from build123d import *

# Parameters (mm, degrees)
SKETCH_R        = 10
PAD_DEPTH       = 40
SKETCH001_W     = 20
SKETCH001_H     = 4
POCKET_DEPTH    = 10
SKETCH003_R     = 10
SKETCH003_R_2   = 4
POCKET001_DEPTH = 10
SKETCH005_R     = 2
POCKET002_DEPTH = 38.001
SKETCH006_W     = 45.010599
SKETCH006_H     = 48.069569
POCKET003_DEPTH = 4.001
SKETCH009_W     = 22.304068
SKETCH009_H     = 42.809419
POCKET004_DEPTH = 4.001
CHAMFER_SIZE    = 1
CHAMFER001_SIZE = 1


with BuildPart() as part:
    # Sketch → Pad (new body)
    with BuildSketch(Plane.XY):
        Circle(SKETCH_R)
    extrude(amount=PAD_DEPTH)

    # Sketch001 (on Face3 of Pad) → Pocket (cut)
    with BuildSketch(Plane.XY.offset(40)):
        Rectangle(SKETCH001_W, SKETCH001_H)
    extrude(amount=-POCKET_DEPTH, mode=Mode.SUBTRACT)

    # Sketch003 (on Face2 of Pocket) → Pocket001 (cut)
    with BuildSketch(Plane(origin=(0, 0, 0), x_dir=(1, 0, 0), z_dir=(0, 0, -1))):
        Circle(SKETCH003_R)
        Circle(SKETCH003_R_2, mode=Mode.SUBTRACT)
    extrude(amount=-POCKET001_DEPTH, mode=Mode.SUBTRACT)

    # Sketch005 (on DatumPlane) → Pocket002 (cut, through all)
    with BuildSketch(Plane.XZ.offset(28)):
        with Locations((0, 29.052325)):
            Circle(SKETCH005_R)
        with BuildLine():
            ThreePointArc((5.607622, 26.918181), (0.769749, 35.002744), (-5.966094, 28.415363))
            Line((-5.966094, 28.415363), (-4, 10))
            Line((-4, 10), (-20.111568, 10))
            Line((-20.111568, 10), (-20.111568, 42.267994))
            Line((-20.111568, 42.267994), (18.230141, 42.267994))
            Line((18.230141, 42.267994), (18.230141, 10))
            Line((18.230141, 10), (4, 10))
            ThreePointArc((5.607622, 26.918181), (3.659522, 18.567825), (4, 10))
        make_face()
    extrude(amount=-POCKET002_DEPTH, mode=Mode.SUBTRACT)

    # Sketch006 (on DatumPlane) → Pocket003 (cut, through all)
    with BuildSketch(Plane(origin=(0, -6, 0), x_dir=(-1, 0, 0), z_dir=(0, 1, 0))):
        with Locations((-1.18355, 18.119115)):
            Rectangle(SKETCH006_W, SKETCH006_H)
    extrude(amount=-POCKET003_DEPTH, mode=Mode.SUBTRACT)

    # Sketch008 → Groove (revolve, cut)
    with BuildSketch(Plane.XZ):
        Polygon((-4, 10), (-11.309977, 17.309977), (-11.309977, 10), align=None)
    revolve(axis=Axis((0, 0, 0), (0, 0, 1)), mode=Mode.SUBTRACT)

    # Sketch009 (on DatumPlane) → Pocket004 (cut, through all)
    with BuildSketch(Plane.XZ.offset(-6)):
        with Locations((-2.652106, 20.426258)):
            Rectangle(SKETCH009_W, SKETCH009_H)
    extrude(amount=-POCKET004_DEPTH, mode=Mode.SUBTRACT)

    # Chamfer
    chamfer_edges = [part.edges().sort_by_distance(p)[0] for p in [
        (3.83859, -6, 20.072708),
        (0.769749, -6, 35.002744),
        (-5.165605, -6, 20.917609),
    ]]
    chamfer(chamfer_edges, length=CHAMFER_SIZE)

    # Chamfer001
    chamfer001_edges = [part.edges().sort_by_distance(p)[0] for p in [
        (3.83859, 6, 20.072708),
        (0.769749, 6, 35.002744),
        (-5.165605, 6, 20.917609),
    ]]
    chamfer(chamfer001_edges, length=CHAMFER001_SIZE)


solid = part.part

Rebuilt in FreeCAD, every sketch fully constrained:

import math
import FreeCAD as App
import Part
import Sketcher
from FreeCAD import Vector


def edges_at(feature, points):
    """Names of the edges that pass closest to the given points."""
    edges = feature.Shape.Edges
    near = lambda p: min(range(len(edges)), key=lambda i: edges[i].distToShape(Part.Vertex(*p))[0])
    return sorted({f"Edge{near(p) + 1}" for p in points})

doc = App.newDocument("Part")
params = doc.addObject("Spreadsheet::Sheet", "Params")
for row, (alias, value) in enumerate([
    ("sketch1_diameter", "20 mm"),
    ("pad1_length", "40 mm"),
    ("sketch2_width", "20 mm"),
    ("sketch2_height", "4 mm"),
    ("pocket1_length", "10 mm"),
    ("sketch3_diameter", "20 mm"),
    ("sketch3_diameter2", "8 mm"),
    ("pocket2_length", "10 mm"),
    ("sketch4_diameter", "4 mm"),
    ("sketch4_radius", "6 mm"),
    ("groove_angle", "360 deg"),
    ("chamfer_size", "1 mm"),
    ("chamfer2_size", "1 mm"),
], start=1):
    params.set(f"A{row}", alias)
    params.set(f"B{row}", "=" + value)
    params.setAlias(f"B{row}", alias)

body = doc.addObject("PartDesign::Body", "Body")

sketch1 = body.newObject("Sketcher::SketchObject", "Sketch")
sketch1.AttachmentSupport = (doc.getObject("XY_Plane"), [""])
sketch1.MapMode = "FlatFace"
sketch1.addGeometry(Part.Circle(Vector(0, 0, 0), Vector(0, 0, 1), 10), False)
sketch1.addConstraint(Sketcher.Constraint("Coincident", 0, 3, -1, 1))
sketch1.addConstraint(Sketcher.Constraint("Diameter", 0, 20.0))
sketch1.setExpression("Constraints[1]", "Params.sketch1_diameter")
pad1 = body.newObject("PartDesign::Pad", "Pad")
pad1.Profile = sketch1
pad1.setExpression("Length", "Params.pad1_length")

sketch2 = body.newObject("Sketcher::SketchObject", "Sketch001")
sketch2.AttachmentSupport = (doc.getObject("XY_Plane"), [""])
sketch2.MapMode = "FlatFace"
sketch2.AttachmentOffset = App.Placement(Vector(0, 0, 40), App.Rotation())
sketch2.addGeometry(Part.LineSegment(Vector(-10, 2, 0), Vector(-10, -2, 0)), False)
sketch2.addGeometry(Part.LineSegment(Vector(-10, -2, 0), Vector(10, -2, 0)), False)
sketch2.addGeometry(Part.LineSegment(Vector(10, -2, 0), Vector(10, 2, 0)), False)
sketch2.addGeometry(Part.LineSegment(Vector(10, 2, 0), Vector(-10, 2, 0)), False)
sketch2.addConstraint(Sketcher.Constraint("Coincident", 0, 2, 1, 1))
sketch2.addConstraint(Sketcher.Constraint("Coincident", 1, 2, 2, 1))
sketch2.addConstraint(Sketcher.Constraint("Coincident", 2, 2, 3, 1))
sketch2.addConstraint(Sketcher.Constraint("Coincident", 3, 2, 0, 1))
sketch2.addConstraint(Sketcher.Constraint("Vertical", 0))
sketch2.addConstraint(Sketcher.Constraint("Horizontal", 1))
sketch2.addConstraint(Sketcher.Constraint("Vertical", 2))
sketch2.addConstraint(Sketcher.Constraint("Horizontal", 3))
sketch2.addConstraint(Sketcher.Constraint("Symmetric", 0, 2, 2, 2, -1, 1))
sketch2.addConstraint(Sketcher.Constraint("DistanceX", 1, 1, 1, 2, 20.0))
sketch2.addConstraint(Sketcher.Constraint("DistanceY", 0, 2, 0, 1, 4.0))
sketch2.setExpression("Constraints[9]", "Params.sketch2_width")
sketch2.setExpression("Constraints[10]", "Params.sketch2_height")
pocket1 = body.newObject("PartDesign::Pocket", "Pocket")
pocket1.Profile = sketch2
pocket1.setExpression("Length", "Params.pocket1_length")

sketch3 = body.newObject("Sketcher::SketchObject", "Sketch002")
sketch3.AttachmentSupport = (doc.getObject("XY_Plane"), [""])
sketch3.MapMode = "FlatFace"
sketch3.addGeometry(Part.Circle(Vector(0, 0, 0), Vector(0, 0, 1), 10), False)
sketch3.addGeometry(Part.Circle(Vector(0, 0, 0), Vector(0, 0, 1), 4), False)
sketch3.addConstraint(Sketcher.Constraint("Coincident", 0, 3, -1, 1))
sketch3.addConstraint(Sketcher.Constraint("Coincident", 1, 3, -1, 1))
sketch3.addConstraint(Sketcher.Constraint("Diameter", 0, 20.0))
sketch3.addConstraint(Sketcher.Constraint("Diameter", 1, 8.0))
sketch3.setExpression("Constraints[2]", "Params.sketch3_diameter")
sketch3.setExpression("Constraints[3]", "Params.sketch3_diameter2")
pocket2 = body.newObject("PartDesign::Pocket", "Pocket001")
pocket2.Profile = sketch3
pocket2.setExpression("Length", "Params.pocket2_length")
pocket2.Reversed = True

sketch4 = body.newObject("Sketcher::SketchObject", "Sketch003")
sketch4.AttachmentSupport = (doc.getObject("XZ_Plane"), [""])
sketch4.MapMode = "FlatFace"
sketch4.AttachmentOffset = App.Placement(Vector(0, 0, 28), App.Rotation())
sketch4.addGeometry(Part.Circle(Vector(0, 29.052325, 0), Vector(0, 0, 1), 2), False)
sketch4.addGeometry(Part.ArcOfCircle(Part.Circle(Vector(0, 29.052325, 0), Vector(0, 0, 1), 6), math.radians(-20.835783), math.radians(186.094025)), False)
sketch4.addGeometry(Part.ArcOfCircle(Part.Circle(Vector(35.498335, 15.542394, 0), Vector(0, 0, 1), 31.982233), math.radians(159.164211), math.radians(189.979513)), False)
sketch4.addGeometry(Part.LineSegment(Vector(4, 10, 0), Vector(18.230141, 10, 0)), False)
sketch4.addGeometry(Part.LineSegment(Vector(18.230141, 10, 0), Vector(18.230141, 42.267994, 0)), False)
sketch4.addGeometry(Part.LineSegment(Vector(18.230141, 42.267994, 0), Vector(-20.111568, 42.267994, 0)), False)
sketch4.addGeometry(Part.LineSegment(Vector(-20.111568, 42.267994, 0), Vector(-20.111568, 10, 0)), False)
sketch4.addGeometry(Part.LineSegment(Vector(-20.111568, 10, 0), Vector(-4, 10, 0)), False)
sketch4.addGeometry(Part.LineSegment(Vector(-4, 10, 0), Vector(-5.966094, 28.415363, 0)), False)
sketch4.addConstraint(Sketcher.Constraint("Tangent", 1, 1, 2, 1))
sketch4.addConstraint(Sketcher.Constraint("Coincident", 2, 2, 3, 1))
sketch4.addConstraint(Sketcher.Constraint("Coincident", 3, 2, 4, 1))
sketch4.addConstraint(Sketcher.Constraint("Coincident", 4, 2, 5, 1))
sketch4.addConstraint(Sketcher.Constraint("Coincident", 5, 2, 6, 1))
sketch4.addConstraint(Sketcher.Constraint("Coincident", 6, 2, 7, 1))
sketch4.addConstraint(Sketcher.Constraint("Coincident", 7, 2, 8, 1))
sketch4.addConstraint(Sketcher.Constraint("Tangent", 8, 2, 1, 2))
sketch4.addConstraint(Sketcher.Constraint("Horizontal", 3))
sketch4.addConstraint(Sketcher.Constraint("Vertical", 4))
sketch4.addConstraint(Sketcher.Constraint("Horizontal", 5))
sketch4.addConstraint(Sketcher.Constraint("Vertical", 6))
sketch4.addConstraint(Sketcher.Constraint("Horizontal", 7))
sketch4.addConstraint(Sketcher.Constraint("Coincident", 1, 3, 0, 3))
sketch4.addConstraint(Sketcher.Constraint("Symmetric", 2, 2, 7, 2, -2))
sketch4.addConstraint(Sketcher.Constraint("PointOnObject", 0, 3, -2))
sketch4.addConstraint(Sketcher.Constraint("Diameter", 0, 4.0))
sketch4.addConstraint(Sketcher.Constraint("Radius", 1, 6.0))
sketch4.addConstraint(Sketcher.Constraint("DistanceX", -1, 1, 2, 2, 4.0))
sketch4.addConstraint(Sketcher.Constraint("DistanceY", -1, 1, 2, 2, 10.0))
sketch4.addConstraint(Sketcher.Constraint("Radius", 2, 31.982233))
sketch4.addConstraint(Sketcher.Constraint("DistanceX", 3, 1, 3, 2, 14.230141))
sketch4.addConstraint(Sketcher.Constraint("DistanceX", 5, 2, 5, 1, 38.341709))
sketch4.addConstraint(Sketcher.Constraint("DistanceY", 2, 3, 4, 2, 26.7256))
sketch4.addConstraint(Sketcher.Constraint("Distance", 8, 18.520019))
sketch4.setExpression("Constraints[16]", "Params.sketch4_diameter")
sketch4.setExpression("Constraints[17]", "Params.sketch4_radius")
pocket3 = body.newObject("PartDesign::Pocket", "Pocket002")
pocket3.Profile = sketch4
pocket3.Type = "ThroughAll"

sketch5 = body.newObject("Sketcher::SketchObject", "Sketch004")
sketch5.AttachmentSupport = (doc.getObject("XZ_Plane"), [""])
sketch5.MapMode = "FlatFace"
sketch5.AttachmentOffset = App.Placement(Vector(0, 0, 6), App.Rotation())
sketch5.addGeometry(Part.LineSegment(Vector(23.688849, 42.1539, 0), Vector(23.688849, -5.915669, 0)), False)
sketch5.addGeometry(Part.LineSegment(Vector(23.688849, -5.915669, 0), Vector(-21.321749, -5.915669, 0)), False)
sketch5.addGeometry(Part.LineSegment(Vector(-21.321749, -5.915669, 0), Vector(-21.321749, 42.1539, 0)), False)
sketch5.addGeometry(Part.LineSegment(Vector(-21.321749, 42.1539, 0), Vector(23.688849, 42.1539, 0)), False)
sketch5.addConstraint(Sketcher.Constraint("Coincident", 0, 2, 1, 1))
sketch5.addConstraint(Sketcher.Constraint("Coincident", 1, 2, 2, 1))
sketch5.addConstraint(Sketcher.Constraint("Coincident", 2, 2, 3, 1))
sketch5.addConstraint(Sketcher.Constraint("Coincident", 3, 2, 0, 1))
sketch5.addConstraint(Sketcher.Constraint("Vertical", 0))
sketch5.addConstraint(Sketcher.Constraint("Horizontal", 1))
sketch5.addConstraint(Sketcher.Constraint("Vertical", 2))
sketch5.addConstraint(Sketcher.Constraint("Horizontal", 3))
sketch5.addConstraint(Sketcher.Constraint("DistanceX", 1, 2, 1, 1, 45.010599))
sketch5.addConstraint(Sketcher.Constraint("DistanceY", 0, 2, 0, 1, 48.069569))
sketch5.addConstraint(Sketcher.Constraint("DistanceY", -1, 1, 2, 2, 42.1539))
sketch5.addConstraint(Sketcher.Constraint("DistanceX", -1, 1, 0, 2, 23.688849))
pocket4 = body.newObject("PartDesign::Pocket", "Pocket003")
pocket4.Profile = sketch5
pocket4.Type = "ThroughAll"
pocket4.Reversed = True

sketch6 = body.newObject("Sketcher::SketchObject", "Sketch005")
sketch6.AttachmentSupport = (doc.getObject("XZ_Plane"), [""])
sketch6.MapMode = "FlatFace"
sketch6.addGeometry(Part.LineSegment(Vector(-4, 10, 0), Vector(-11.309977, 17.309977, 0)), False)
sketch6.addGeometry(Part.LineSegment(Vector(-11.309977, 17.309977, 0), Vector(-11.309977, 10, 0)), False)
sketch6.addGeometry(Part.LineSegment(Vector(-11.309977, 10, 0), Vector(-4, 10, 0)), False)
sketch6.addConstraint(Sketcher.Constraint("Coincident", 0, 2, 1, 1))
sketch6.addConstraint(Sketcher.Constraint("Coincident", 1, 2, 2, 1))
sketch6.addConstraint(Sketcher.Constraint("Coincident", 2, 2, 0, 1))
sketch6.addConstraint(Sketcher.Constraint("Vertical", 1))
sketch6.addConstraint(Sketcher.Constraint("Horizontal", 2))
sketch6.addConstraint(Sketcher.Constraint("Equal", 2, 1))
sketch6.addConstraint(Sketcher.Constraint("DistanceY", -1, 1, 1, 2, 10.0))
sketch6.addConstraint(Sketcher.Constraint("DistanceX", 2, 2, -1, 1, 4.0))
sketch6.addConstraint(Sketcher.Constraint("Distance", 0, 10.337869))
groove = body.newObject("PartDesign::Groove", "Groove")
groove.Profile = sketch6
groove.ReferenceAxis = (sketch6, ["V_Axis"])
groove.setExpression("Angle", "Params.groove_angle")

sketch7 = body.newObject("Sketcher::SketchObject", "Sketch006")
sketch7.AttachmentSupport = (doc.getObject("XZ_Plane"), [""])
sketch7.MapMode = "FlatFace"
sketch7.AttachmentOffset = App.Placement(Vector(0, 0, -6), App.Rotation())
sketch7.addGeometry(Part.LineSegment(Vector(-13.80414, 41.830967, 0), Vector(-13.80414, -0.978452, 0)), False)
sketch7.addGeometry(Part.LineSegment(Vector(-13.80414, -0.978452, 0), Vector(8.499928, -0.978452, 0)), False)
sketch7.addGeometry(Part.LineSegment(Vector(8.499928, -0.978452, 0), Vector(8.499928, 41.830967, 0)), False)
sketch7.addGeometry(Part.LineSegment(Vector(8.499928, 41.830967, 0), Vector(-13.80414, 41.830967, 0)), False)
sketch7.addConstraint(Sketcher.Constraint("Coincident", 0, 2, 1, 1))
sketch7.addConstraint(Sketcher.Constraint("Coincident", 1, 2, 2, 1))
sketch7.addConstraint(Sketcher.Constraint("Coincident", 2, 2, 3, 1))
sketch7.addConstraint(Sketcher.Constraint("Coincident", 3, 2, 0, 1))
sketch7.addConstraint(Sketcher.Constraint("Vertical", 0))
sketch7.addConstraint(Sketcher.Constraint("Horizontal", 1))
sketch7.addConstraint(Sketcher.Constraint("Vertical", 2))
sketch7.addConstraint(Sketcher.Constraint("Horizontal", 3))
sketch7.addConstraint(Sketcher.Constraint("DistanceX", 1, 1, 1, 2, 22.304068))
sketch7.addConstraint(Sketcher.Constraint("DistanceY", 0, 2, 0, 1, 42.809419))
sketch7.addConstraint(Sketcher.Constraint("DistanceX", 0, 2, -1, 1, 13.80414))
sketch7.addConstraint(Sketcher.Constraint("DistanceY", 0, 2, -1, 1, 0.978452))
pocket5 = body.newObject("PartDesign::Pocket", "Pocket004")
pocket5.Profile = sketch7
pocket5.Type = "ThroughAll"
doc.recompute()

chamfer = body.newObject("PartDesign::Chamfer", "Chamfer")
chamfer.Base = (pocket5, edges_at(pocket5, [(3.839, -6, 20.073), (0.77, -6, 35.003), (-5.166, -6, 20.918)]))
chamfer.setExpression("Size", "Params.chamfer_size")
doc.recompute()

chamfer2 = body.newObject("PartDesign::Chamfer", "Chamfer001")
chamfer2.Base = (chamfer, edges_at(chamfer, [(3.839, 6, 20.073), (0.77, 6, 35.003), (-5.166, 6, 20.918)]))
chamfer2.setExpression("Size", "Params.chamfer2_size")

doc.recompute()
